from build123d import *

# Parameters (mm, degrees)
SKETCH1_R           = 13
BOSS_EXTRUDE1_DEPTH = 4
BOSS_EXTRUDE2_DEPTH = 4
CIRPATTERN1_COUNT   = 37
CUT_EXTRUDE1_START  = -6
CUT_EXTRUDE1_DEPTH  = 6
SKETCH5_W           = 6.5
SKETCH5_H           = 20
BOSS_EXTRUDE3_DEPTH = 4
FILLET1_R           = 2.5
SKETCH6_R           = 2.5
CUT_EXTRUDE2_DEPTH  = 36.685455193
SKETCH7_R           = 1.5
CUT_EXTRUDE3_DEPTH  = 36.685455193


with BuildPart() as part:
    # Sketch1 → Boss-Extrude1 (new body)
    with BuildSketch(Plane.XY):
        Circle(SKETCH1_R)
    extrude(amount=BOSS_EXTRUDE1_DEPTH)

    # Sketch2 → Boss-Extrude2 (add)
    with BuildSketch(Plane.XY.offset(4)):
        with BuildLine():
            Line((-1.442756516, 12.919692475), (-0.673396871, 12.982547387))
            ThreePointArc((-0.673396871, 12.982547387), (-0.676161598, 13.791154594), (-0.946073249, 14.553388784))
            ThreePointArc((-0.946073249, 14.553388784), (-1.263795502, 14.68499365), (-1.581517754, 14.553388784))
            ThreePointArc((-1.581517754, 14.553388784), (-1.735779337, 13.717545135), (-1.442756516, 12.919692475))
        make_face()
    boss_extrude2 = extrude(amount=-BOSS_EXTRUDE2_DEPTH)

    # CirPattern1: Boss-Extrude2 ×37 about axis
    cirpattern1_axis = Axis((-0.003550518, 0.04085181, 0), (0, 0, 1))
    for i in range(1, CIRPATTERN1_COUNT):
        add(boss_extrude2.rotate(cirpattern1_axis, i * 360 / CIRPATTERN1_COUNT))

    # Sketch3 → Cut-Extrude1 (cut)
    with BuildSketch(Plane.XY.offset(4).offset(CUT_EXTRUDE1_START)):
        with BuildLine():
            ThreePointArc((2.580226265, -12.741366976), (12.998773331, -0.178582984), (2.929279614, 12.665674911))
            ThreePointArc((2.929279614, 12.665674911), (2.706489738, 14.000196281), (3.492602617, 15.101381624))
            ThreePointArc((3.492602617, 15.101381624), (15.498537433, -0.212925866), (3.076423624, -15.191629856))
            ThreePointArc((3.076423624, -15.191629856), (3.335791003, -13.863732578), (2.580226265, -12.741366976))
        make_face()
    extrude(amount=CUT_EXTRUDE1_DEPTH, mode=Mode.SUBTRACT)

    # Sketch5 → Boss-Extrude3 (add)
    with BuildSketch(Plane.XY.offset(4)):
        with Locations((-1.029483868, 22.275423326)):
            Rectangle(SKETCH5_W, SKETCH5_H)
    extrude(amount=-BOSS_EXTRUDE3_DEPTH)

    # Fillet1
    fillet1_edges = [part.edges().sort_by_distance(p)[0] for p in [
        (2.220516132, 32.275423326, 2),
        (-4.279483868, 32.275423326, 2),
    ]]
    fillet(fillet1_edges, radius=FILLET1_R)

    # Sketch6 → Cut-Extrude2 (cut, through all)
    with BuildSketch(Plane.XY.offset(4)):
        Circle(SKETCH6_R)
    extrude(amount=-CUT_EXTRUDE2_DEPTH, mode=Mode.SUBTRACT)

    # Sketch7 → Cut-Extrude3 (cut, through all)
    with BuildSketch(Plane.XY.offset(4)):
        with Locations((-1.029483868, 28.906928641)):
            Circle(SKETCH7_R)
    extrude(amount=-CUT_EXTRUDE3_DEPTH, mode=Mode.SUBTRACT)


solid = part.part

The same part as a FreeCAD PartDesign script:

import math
import FreeCAD as App
import Part
import Sketcher
Q = App.Units.Quantity


def edges_at(feature, points):
    """Names of the edges that pass closest to the given points."""
    edges = feature.Shape.Edges
    near = lambda p: min(range(len(edges)), key=lambda i: edges[i].distToShape(Part.Vertex(*p))[0])
    return sorted({f"Edge{near(p) + 1}" for p in points})

doc = App.newDocument("Part")
body = doc.addObject("PartDesign::Body", "Body")

# Sketch on XY plane
sketch1 = body.newObject("Sketcher::SketchObject", "Sketch")
sketch1.AttachmentSupport = (doc.getObject("XY_Plane"), [""])
sketch1.MapMode = "FlatFace"
sketch1.addGeometry(Part.Circle(App.Vector(0, 0, 0), App.Vector(0, 0, 1), 13), False)
sketch1.addConstraint(Sketcher.Constraint("Coincident", 0, 3, -1, 1))
sketch1.addConstraint(Sketcher.Constraint("Diameter", 0, Q("26 mm")))
pad1 = body.newObject("PartDesign::Pad", "Pad")
pad1.Profile = sketch1
pad1.Length = 4

# Sketch on XY plane
sketch2 = body.newObject("Sketcher::SketchObject", "Sketch001")
sketch2.AttachmentSupport = (doc.getObject("XY_Plane"), [""])
sketch2.MapMode = "FlatFace"
sketch2.AttachmentOffset = App.Placement(App.Vector(0, 0, 4), App.Rotation())
sketch2.addGeometry(Part.LineSegment(App.Vector(-1.442757, 12.919692, 0), App.Vector(-0.673397, 12.982547, 0)), False)
sketch2.addGeometry(Part.ArcOfCircle(Part.Circle(App.Vector(-3.052111, 13.378723, 0), App.Vector(0, 0, 1), 2.41148), math.radians(-9.455828), math.radians(29.151085)), False)
sketch2.addGeometry(Part.ArcOfCircle(Part.Circle(App.Vector(-1.263796, 14.235667, 0), App.Vector(0, 0, 1), 0.449327), math.radians(45), math.radians(135)), False)
sketch2.addGeometry(Part.ArcOfCircle(Part.Circle(App.Vector(-0.132198, 13.853748, 0), App.Vector(0, 0, 1), 1.609355), math.radians(154.231669), math.radians(215.478087)), False)
sketch2.addConstraint(Sketcher.Constraint("Coincident", 0, 2, 1, 1))
sketch2.addConstraint(Sketcher.Constraint("Coincident", 1, 2, 2, 1))
sketch2.addConstraint(Sketcher.Constraint("Coincident", 2, 2, 3, 1))
sketch2.addConstraint(Sketcher.Constraint("Coincident", 3, 2, 0, 1))
sketch2.addConstraint(Sketcher.Constraint("Radius", 1, Q("2.41148 mm")))
sketch2.addConstraint(Sketcher.Constraint("Radius", 2, Q("0.449327 mm")))
sketch2.addConstraint(Sketcher.Constraint("Radius", 3, Q("1.609355 mm")))
sketch2.addConstraint(Sketcher.Constraint("DistanceX", 3, 3, -1, 1, Q("0.132198 mm")))
sketch2.addConstraint(Sketcher.Constraint("DistanceX", 0, 2, 3, 3, Q("0.541198 mm")))
sketch2.addConstraint(Sketcher.Constraint("DistanceY", 0, 2, 3, 3, Q("0.871201 mm")))
sketch2.addConstraint(Sketcher.Constraint("DistanceX", 2, 3, 0, 2, Q("0.590399 mm")))
sketch2.addConstraint(Sketcher.Constraint("DistanceX", 1, 3, -1, 1, Q("3.052111 mm")))
sketch2.addConstraint(Sketcher.Constraint("DistanceY", -1, 1, 3, 3, Q("13.853748 mm")))
sketch2.addConstraint(Sketcher.Constraint("DistanceY", -1, 1, 1, 2, Q("14.553389 mm")))
sketch2.addConstraint(Sketcher.Constraint("DistanceX", 3, 2, 0, 2, Q("0.76936 mm")))
pad2 = body.newObject("PartDesign::Pad", "Pad001")
pad2.Profile = sketch2
pad2.Length = 4
pad2.Reversed = True
doc.recompute()

datumline = body.newObject("PartDesign::Line", "DatumLine")
datumline.Placement = App.Placement(App.Vector(-0.003551, 0.040852, 0), App.Rotation(App.Vector(0, 0, 1), App.Vector(0, 0, 1)))
polarpattern = body.newObject("PartDesign::PolarPattern", "PolarPattern")
polarpattern.Originals = [pad2]
polarpattern.Axis = (datumline, [""])
polarpattern.Angle = 360
polarpattern.Occurrences = 37
body.Tip = polarpattern

# Sketch on XY plane
sketch3 = body.newObject("Sketcher::SketchObject", "Sketch002")
sketch3.AttachmentSupport = (doc.getObject("XY_Plane"), [""])
sketch3.MapMode = "FlatFace"
sketch3.AttachmentOffset = App.Placement(App.Vector(0, 0, -2), App.Rotation())
sketch3.addGeometry(Part.ArcOfCircle(Part.Circle(App.Vector(0, 0, 0), App.Vector(0, 0, 1), 13), math.radians(-78.551974), math.radians(76.977763)), False)
sketch3.addGeometry(Part.ArcOfCircle(Part.Circle(App.Vector(1.603194, -14.214597, 0), App.Vector(0, 0, 1), 1.767767), math.radians(-33.551974), math.radians(56.448026)), False)
sketch3.addGeometry(Part.ArcOfCircle(Part.Circle(App.Vector(0, 0, 0), App.Vector(0, 0, 1), 15.5), math.radians(-78.551974), math.radians(76.977763)), False)
sketch3.addGeometry(Part.ArcOfCircle(Part.Circle(App.Vector(4.428794, 13.601867, 0), App.Vector(0, 0, 1), 1.767767), math.radians(121.977763), math.radians(211.977763)), False)
sketch3.addConstraint(Sketcher.Constraint("Coincident", 0, 1, 1, 2))
sketch3.addConstraint(Sketcher.Constraint("Coincident", 1, 1, 2, 1))
sketch3.addConstraint(Sketcher.Constraint("Coincident", 2, 2, 3, 1))
sketch3.addConstraint(Sketcher.Constraint("Coincident", 3, 2, 0, 2))
sketch3.addConstraint(Sketcher.Constraint("Coincident", 0, 3, -1, 1))
sketch3.addConstraint(Sketcher.Constraint("Coincident", 2, 3, -1, 1))
sketch3.addConstraint(Sketcher.Constraint("Equal", 1, 3))
sketch3.addConstraint(Sketcher.Constraint("Radius", 0, Q("13 mm")))
sketch3.addConstraint(Sketcher.Constraint("Radius", 2, Q("15.5 mm")))
sketch3.addConstraint(Sketcher.Constraint("Radius", 1, Q("1.767767 mm")))
sketch3.addConstraint(Sketcher.Constraint("DistanceX", 1, 3, 3, 3, Q("2.825601 mm")))
sketch3.addConstraint(Sketcher.Constraint("DistanceY", 1, 1, -1, 1, Q("15.19163 mm")))
sketch3.addConstraint(Sketcher.Constraint("DistanceY", -1, 1, 2, 2, Q("15.101382 mm")))
sketch3.addConstraint(Sketcher.Constraint("DistanceX", -1, 1, 3, 2, Q("2.92928 mm")))
pocket1 = body.newObject("PartDesign::Pocket", "Pocket")
pocket1.Profile = sketch3
pocket1.Length = 6
pocket1.Reversed = True

# Sketch on XY plane
sketch4 = body.newObject("Sketcher::SketchObject", "Sketch003")
sketch4.AttachmentSupport = (doc.getObject("XY_Plane"), [""])
sketch4.MapMode = "FlatFace"
sketch4.AttachmentOffset = App.Placement(App.Vector(0, 0, 4), App.Rotation())
sketch4.addGeometry(Part.LineSegment(App.Vector(-4.279484, 32.275423, 0), App.Vector(-4.279484, 12.275423, 0)), False)
sketch4.addGeometry(Part.LineSegment(App.Vector(-4.279484, 12.275423, 0), App.Vector(2.220516, 12.275423, 0)), False)
sketch4.addGeometry(Part.LineSegment(App.Vector(2.220516, 12.275423, 0), App.Vector(2.220516, 32.275423, 0)), False)
sketch4.addGeometry(Part.LineSegment(App.Vector(2.220516, 32.275423, 0), App.Vector(-4.279484, 32.275423, 0)), False)
sketch4.addConstraint(Sketcher.Constraint("Coincident", 0, 2, 1, 1))
sketch4.addConstraint(Sketcher.Constraint("Coincident", 1, 2, 2, 1))
sketch4.addConstraint(Sketcher.Constraint("Coincident", 2, 2, 3, 1))
sketch4.addConstraint(Sketcher.Constraint("Coincident", 3, 2, 0, 1))
sketch4.addConstraint(Sketcher.Constraint("Vertical", 0))
sketch4.addConstraint(Sketcher.Constraint("Horizontal", 1))
sketch4.addConstraint(Sketcher.Constraint("Vertical", 2))
sketch4.addConstraint(Sketcher.Constraint("Horizontal", 3))
sketch4.addConstraint(Sketcher.Constraint("DistanceY", 0, 2, 0, 1, Q("20 mm")))
sketch4.addConstraint(Sketcher.Constraint("DistanceX", 1, 1, 1, 2, Q("6.5 mm")))
sketch4.addConstraint(Sketcher.Constraint("DistanceX", 0, 2, -1, 1, Q("4.279484 mm")))
sketch4.addConstraint(Sketcher.Constraint("DistanceY", -1, 1, 0, 2, Q("12.275423 mm")))
pad3 = body.newObject("PartDesign::Pad", "Pad002")
pad3.Profile = sketch4
pad3.Length = 4
pad3.Reversed = True
doc.recompute()

fillet = body.newObject("PartDesign::Fillet", "Fillet")
fillet.Base = (pad3, edges_at(pad3, [(2.221, 32.275, 2), (-4.279, 32.275, 2)]))
fillet.Radius = 2.5

# Sketch on XY plane
sketch5 = body.newObject("Sketcher::SketchObject", "Sketch004")
sketch5.AttachmentSupport = (doc.getObject("XY_Plane"), [""])
sketch5.MapMode = "FlatFace"
sketch5.AttachmentOffset = App.Placement(App.Vector(0, 0, 4), App.Rotation())
sketch5.addGeometry(Part.Circle(App.Vector(0, 0, 0), App.Vector(0, 0, 1), 2.5), False)
sketch5.addConstraint(Sketcher.Constraint("Coincident", 0, 3, -1, 1))
sketch5.addConstraint(Sketcher.Constraint("Diameter", 0, Q("5 mm")))
pocket2 = body.newObject("PartDesign::Pocket", "Pocket001")
pocket2.Profile = sketch5
pocket2.Type = "ThroughAll"

# Sketch on XY plane
sketch6 = body.newObject("Sketcher::SketchObject", "Sketch005")
sketch6.AttachmentSupport = (doc.getObject("XY_Plane"), [""])
sketch6.MapMode = "FlatFace"
sketch6.AttachmentOffset = App.Placement(App.Vector(0, 0, 4), App.Rotation())
sketch6.addGeometry(Part.Circle(App.Vector(-1.029484, 28.906929, 0), App.Vector(0, 0, 1), 1.5), False)
sketch6.addConstraint(Sketcher.Constraint("Diameter", 0, Q("3 mm")))
sketch6.addConstraint(Sketcher.Constraint("DistanceY", -1, 1, 0, 3, Q("28.906929 mm")))
sketch6.addConstraint(Sketcher.Constraint("DistanceX", 0, 3, -1, 1, Q("1.029484 mm")))
pocket3 = body.newObject("PartDesign::Pocket", "Pocket002")
pocket3.Profile = sketch6
pocket3.Type = "ThroughAll"

doc.recompute()
